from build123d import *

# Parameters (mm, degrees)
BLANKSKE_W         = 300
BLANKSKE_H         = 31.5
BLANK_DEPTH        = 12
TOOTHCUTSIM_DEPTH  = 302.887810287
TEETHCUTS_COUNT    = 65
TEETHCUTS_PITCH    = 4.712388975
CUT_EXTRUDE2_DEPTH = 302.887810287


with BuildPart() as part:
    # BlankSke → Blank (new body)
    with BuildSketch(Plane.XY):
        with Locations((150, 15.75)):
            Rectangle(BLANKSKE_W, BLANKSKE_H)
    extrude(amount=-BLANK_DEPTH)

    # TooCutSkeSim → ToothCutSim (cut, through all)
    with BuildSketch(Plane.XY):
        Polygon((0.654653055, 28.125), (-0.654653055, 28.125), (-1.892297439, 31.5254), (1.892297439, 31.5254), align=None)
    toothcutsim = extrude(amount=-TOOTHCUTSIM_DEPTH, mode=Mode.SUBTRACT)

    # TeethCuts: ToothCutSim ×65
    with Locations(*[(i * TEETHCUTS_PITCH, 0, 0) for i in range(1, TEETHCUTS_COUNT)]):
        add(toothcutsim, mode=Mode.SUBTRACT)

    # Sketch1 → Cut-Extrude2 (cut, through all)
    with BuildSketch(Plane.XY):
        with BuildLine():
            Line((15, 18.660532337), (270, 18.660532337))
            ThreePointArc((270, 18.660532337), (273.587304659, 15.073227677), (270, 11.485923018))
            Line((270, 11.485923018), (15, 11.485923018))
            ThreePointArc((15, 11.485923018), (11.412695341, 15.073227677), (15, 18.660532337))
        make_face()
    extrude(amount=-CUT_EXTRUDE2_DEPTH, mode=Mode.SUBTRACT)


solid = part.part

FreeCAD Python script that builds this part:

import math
import FreeCAD as App
import Part
import Sketcher

V = App.Vector
Q = App.Units.Quantity

doc = App.newDocument("Part")
body = doc.addObject("PartDesign::Body", "Body")

sketch1 = body.newObject("Sketcher::SketchObject", "Sketch")
sketch1.AttachmentSupport = (doc.getObject("XY_Plane"), [""])
sketch1.MapMode = "FlatFace"
sketch1.addGeometry(Part.LineSegment(V(0, 32, 0), V(0, 0, 0)), False)
sketch1.addGeometry(Part.LineSegment(V(0, 0, 0), V(300, 0, 0)), False)
sketch1.addGeometry(Part.LineSegment(V(300, 0, 0), V(300, 32, 0)), False)
sketch1.addGeometry(Part.LineSegment(V(300, 32, 0), V(0, 32, 0)), False)
sketch1.addConstraint(Sketcher.Constraint("Coincident", 0, 2, 1, 1))
sketch1.addConstraint(Sketcher.Constraint("Coincident", 1, 2, 2, 1))
sketch1.addConstraint(Sketcher.Constraint("Coincident", 2, 2, 3, 1))
sketch1.addConstraint(Sketcher.Constraint("Coincident", 3, 2, 0, 1))
sketch1.addConstraint(Sketcher.Constraint("Vertical", 0))
sketch1.addConstraint(Sketcher.Constraint("Horizontal", 1))
sketch1.addConstraint(Sketcher.Constraint("Vertical", 2))
sketch1.addConstraint(Sketcher.Constraint("Horizontal", 3))
sketch1.addConstraint(Sketcher.Constraint("Coincident", 0, 2, -1, 1))
sketch1.addConstraint(Sketcher.Constraint("DistanceX", 1, 1, 1, 2, 300.0))
sketch1.addConstraint(Sketcher.Constraint("DistanceY", 0, 2, 0, 1, 31.5))
pad1 = body.newObject("PartDesign::Pad", "Pad")
pad1.Profile = sketch1
pad1.Length = 12
pad1.Reversed = True

sketch2 = body.newObject("Sketcher::SketchObject", "Sketch001")
sketch2.AttachmentSupport = (doc.getObject("XY_Plane"), [""])
sketch2.MapMode = "FlatFace"
sketch2.addGeometry(Part.LineSegment(V(-0.7, 28.1, 0), V(0.7, 28.1, 0)), False)
sketch2.addGeometry(Part.LineSegment(V(0.7, 28.1, 0), V(1.9, 31.5, 0)), False)
sketch2.addGeometry(Part.LineSegment(V(1.9, 31.5, 0), V(-1.9, 31.5, 0)), False)
sketch2.addGeometry(Part.LineSegment(V(-1.9, 31.5, 0), V(-0.7, 28.1, 0)), False)
sketch2.addConstraint(Sketcher.Constraint("Coincident", 0, 2, 1, 1))
sketch2.addConstraint(Sketcher.Constraint("Coincident", 1, 2, 2, 1))
sketch2.addConstraint(Sketcher.Constraint("Coincident", 2, 2, 3, 1))
sketch2.addConstraint(Sketcher.Constraint("Coincident", 3, 2, 0, 1))
sketch2.addConstraint(Sketcher.Constraint("Horizontal", 0))
sketch2.addConstraint(Sketcher.Constraint("Horizontal", 2))
sketch2.addConstraint(Sketcher.Constraint("Equal", 1, 3))
sketch2.addConstraint(Sketcher.Constraint("Angle", 1, Q("70 deg")))
sketch2.addConstraint(Sketcher.Constraint("DistanceY", -1, 1, 0, 2, 28.125))
sketch2.addConstraint(Sketcher.Constraint("DistanceY", -1, 1, 1, 2, 31.5254))
sketch2.addConstraint(Sketcher.Constraint("DistanceX", 0, 1, 0, 2, 1.309306))
sketch2.addConstraint(Sketcher.Constraint("DistanceX", -1, 1, 0, 2, 0.654653))
pocket1 = body.newObject("PartDesign::Pocket", "Pocket")
pocket1.Profile = sketch2
pocket1.Type = "ThroughAll"
doc.recompute()

linearpattern = body.newObject("PartDesign::LinearPattern", "LinearPattern")
linearpattern.Originals = [pocket1]
linearpattern.Direction = (doc.getObject("X_Axis"), [""])
linearpattern.Mode = "offset"
linearpattern.Offset = 4.712389
linearpattern.Occurrences = 65
body.Tip = linearpattern

sketch3 = body.newObject("Sketcher::SketchObject", "Sketch002")
sketch3.AttachmentSupport = (doc.getObject("XY_Plane"), [""])
sketch3.MapMode = "FlatFace"
sketch3.addGeometry(Part.LineSegment(V(270, 18.7, 0), V(15, 18.7, 0)), False)
sketch3.addGeometry(Part.ArcOfCircle(Part.Circle(V(15, 15.1, 0), V(0, 0, 1), 3.6), math.radians(90), math.radians(270)), False)
sketch3.addGeometry(Part.LineSegment(V(15, 11.5, 0), V(270, 11.5, 0)), False)
sketch3.addGeometry(Part.ArcOfCircle(Part.Circle(V(270, 15.1, 0), V(0, 0, 1), 3.6), math.radians(-90), math.radians(90)), False)
sketch3.addConstraint(Sketcher.Constraint("Tangent", 0, 2, 1, 1))
sketch3.addConstraint(Sketcher.Constraint("Tangent", 1, 2, 2, 1))
sketch3.addConstraint(Sketcher.Constraint("Tangent", 2, 2, 3, 1))
sketch3.addConstraint(Sketcher.Constraint("Tangent", 3, 2, 0, 1))
sketch3.addConstraint(Sketcher.Constraint("Horizontal", 0))
sketch3.addConstraint(Sketcher.Constraint("Horizontal", 2))
sketch3.addConstraint(Sketcher.Constraint("DistanceX", 0, 2, 0, 1, 255.0))
sketch3.addConstraint(Sketcher.Constraint("DistanceX", -1, 1, 1, 3, 15.0))
sketch3.addConstraint(Sketcher.Constraint("Radius", 1, 3.587305))
sketch3.addConstraint(Sketcher.Constraint("DistanceY", -1, 1, 1, 3, 15.073228))
pocket2 = body.newObject("PartDesign::Pocket", "Pocket001")
pocket2.Profile = sketch3
pocket2.Type = "ThroughAll"

doc.recompute()
